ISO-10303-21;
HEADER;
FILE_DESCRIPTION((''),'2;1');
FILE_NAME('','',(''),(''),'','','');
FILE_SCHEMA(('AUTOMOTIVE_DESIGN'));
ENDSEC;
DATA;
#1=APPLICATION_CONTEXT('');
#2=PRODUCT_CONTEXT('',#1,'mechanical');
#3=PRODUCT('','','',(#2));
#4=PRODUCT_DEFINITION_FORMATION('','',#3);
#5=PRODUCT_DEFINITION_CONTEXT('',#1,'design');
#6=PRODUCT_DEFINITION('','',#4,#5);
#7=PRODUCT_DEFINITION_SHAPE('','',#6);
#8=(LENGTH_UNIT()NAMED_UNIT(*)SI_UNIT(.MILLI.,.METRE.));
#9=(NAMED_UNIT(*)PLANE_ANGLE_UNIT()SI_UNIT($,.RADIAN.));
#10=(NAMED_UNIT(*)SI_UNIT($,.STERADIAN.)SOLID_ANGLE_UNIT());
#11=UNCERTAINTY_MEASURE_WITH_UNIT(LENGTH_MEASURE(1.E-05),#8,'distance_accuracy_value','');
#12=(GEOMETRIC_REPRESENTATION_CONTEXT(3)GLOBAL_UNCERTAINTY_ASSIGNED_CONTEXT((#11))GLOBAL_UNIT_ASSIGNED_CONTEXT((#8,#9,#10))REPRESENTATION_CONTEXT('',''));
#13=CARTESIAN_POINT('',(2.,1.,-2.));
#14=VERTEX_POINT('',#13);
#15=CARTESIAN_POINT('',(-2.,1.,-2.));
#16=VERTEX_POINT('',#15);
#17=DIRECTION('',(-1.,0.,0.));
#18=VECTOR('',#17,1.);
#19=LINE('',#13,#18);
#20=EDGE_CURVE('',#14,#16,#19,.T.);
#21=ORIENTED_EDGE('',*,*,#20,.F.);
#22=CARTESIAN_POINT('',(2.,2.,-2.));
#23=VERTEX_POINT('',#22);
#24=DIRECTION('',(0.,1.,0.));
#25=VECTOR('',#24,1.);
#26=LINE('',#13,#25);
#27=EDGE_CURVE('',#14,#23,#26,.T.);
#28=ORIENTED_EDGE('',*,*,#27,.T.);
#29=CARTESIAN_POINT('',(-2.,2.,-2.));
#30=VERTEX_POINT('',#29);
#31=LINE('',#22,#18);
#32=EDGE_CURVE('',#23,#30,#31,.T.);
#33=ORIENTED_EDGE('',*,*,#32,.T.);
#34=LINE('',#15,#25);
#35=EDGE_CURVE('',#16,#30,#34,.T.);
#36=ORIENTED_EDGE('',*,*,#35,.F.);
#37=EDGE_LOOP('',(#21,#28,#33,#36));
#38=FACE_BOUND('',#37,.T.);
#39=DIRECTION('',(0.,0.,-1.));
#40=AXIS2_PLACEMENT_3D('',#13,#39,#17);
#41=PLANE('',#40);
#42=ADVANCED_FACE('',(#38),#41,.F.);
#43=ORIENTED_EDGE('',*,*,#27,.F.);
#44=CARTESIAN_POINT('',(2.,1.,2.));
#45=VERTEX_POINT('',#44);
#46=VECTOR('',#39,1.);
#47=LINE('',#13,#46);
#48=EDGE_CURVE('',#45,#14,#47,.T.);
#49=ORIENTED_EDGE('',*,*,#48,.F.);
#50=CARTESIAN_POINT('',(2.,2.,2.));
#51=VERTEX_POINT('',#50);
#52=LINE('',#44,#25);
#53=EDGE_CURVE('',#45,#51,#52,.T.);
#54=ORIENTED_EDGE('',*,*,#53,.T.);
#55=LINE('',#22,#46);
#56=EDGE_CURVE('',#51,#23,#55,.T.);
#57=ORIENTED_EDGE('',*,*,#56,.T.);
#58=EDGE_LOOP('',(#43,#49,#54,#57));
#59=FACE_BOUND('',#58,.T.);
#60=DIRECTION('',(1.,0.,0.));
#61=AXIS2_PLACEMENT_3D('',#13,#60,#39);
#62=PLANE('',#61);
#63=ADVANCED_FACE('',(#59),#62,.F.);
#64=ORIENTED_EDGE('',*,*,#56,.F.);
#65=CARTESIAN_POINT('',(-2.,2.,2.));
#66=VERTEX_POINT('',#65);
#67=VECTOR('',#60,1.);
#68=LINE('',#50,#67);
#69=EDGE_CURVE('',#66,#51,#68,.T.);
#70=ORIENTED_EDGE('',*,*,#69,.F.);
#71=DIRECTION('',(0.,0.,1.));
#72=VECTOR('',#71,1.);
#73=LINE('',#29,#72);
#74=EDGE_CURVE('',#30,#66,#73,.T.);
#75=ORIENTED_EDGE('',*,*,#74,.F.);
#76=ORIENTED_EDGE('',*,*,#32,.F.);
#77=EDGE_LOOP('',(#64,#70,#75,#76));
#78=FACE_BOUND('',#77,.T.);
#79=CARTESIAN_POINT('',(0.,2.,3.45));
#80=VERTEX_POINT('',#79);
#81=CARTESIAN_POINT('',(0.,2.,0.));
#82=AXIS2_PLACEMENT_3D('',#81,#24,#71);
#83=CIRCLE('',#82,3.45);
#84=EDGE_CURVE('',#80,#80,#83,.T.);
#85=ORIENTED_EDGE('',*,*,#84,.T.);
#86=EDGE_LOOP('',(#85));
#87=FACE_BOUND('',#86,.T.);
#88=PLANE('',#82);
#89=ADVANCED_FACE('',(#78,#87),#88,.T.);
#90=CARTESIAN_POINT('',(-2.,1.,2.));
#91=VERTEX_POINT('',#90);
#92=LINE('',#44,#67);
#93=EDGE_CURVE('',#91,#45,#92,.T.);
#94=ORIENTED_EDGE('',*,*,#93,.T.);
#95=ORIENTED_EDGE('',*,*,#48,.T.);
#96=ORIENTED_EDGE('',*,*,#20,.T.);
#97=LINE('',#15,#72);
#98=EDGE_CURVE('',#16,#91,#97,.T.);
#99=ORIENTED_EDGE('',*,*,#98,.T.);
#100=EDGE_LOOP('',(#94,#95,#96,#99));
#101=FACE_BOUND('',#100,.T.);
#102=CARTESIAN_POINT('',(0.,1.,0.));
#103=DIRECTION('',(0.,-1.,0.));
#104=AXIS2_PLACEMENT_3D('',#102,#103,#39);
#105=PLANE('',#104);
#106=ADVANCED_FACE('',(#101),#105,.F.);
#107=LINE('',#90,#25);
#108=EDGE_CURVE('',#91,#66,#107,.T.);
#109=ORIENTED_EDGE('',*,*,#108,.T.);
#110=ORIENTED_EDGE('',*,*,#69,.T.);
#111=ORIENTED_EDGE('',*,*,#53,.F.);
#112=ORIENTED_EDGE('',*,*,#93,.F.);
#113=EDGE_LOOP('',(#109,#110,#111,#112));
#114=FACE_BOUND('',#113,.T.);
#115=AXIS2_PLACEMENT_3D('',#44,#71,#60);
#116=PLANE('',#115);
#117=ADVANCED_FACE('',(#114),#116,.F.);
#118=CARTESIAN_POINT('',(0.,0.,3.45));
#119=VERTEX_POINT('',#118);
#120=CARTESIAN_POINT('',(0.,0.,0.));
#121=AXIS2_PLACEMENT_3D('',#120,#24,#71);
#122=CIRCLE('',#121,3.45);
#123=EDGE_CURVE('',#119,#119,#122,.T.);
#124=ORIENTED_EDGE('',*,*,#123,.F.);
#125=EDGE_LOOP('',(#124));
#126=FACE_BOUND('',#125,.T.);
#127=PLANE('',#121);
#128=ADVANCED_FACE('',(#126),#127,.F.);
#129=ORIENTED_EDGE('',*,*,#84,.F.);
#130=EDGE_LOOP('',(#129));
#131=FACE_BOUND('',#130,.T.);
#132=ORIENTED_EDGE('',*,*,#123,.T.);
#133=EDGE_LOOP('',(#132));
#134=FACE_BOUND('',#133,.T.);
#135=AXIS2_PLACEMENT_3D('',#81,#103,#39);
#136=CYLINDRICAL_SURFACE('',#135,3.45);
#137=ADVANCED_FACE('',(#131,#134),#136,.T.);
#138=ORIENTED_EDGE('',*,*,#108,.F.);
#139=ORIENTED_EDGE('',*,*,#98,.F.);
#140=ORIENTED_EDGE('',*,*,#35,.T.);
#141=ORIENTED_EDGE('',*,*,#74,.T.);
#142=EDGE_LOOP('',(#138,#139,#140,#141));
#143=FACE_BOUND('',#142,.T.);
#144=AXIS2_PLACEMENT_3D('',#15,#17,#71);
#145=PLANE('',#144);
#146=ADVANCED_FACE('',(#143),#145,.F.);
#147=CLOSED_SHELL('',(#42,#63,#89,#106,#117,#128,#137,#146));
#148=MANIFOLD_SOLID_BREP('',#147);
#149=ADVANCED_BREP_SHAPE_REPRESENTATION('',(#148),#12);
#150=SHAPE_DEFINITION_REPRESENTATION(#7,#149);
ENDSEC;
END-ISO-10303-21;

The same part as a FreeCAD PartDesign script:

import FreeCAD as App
import Part
import Sketcher
from FreeCAD import Vector
Q = App.Units.Quantity


def add_polygon(sketch, points):
    """Adds a closed chain of lines whose ends are joined by coincident constraints."""
    first, n = sketch.GeometryCount, len(points)
    for a, b in zip(points, points[1:] + points[:1]):
        sketch.addGeometry(Part.LineSegment(App.Vector(*a, 0), App.Vector(*b, 0)), False)
    for i in range(n):
        sketch.addConstraint(Sketcher.Constraint("Coincident", first + i, 2, first + (i + 1) % n, 1))

doc = App.newDocument("Part")
params = doc.addObject("Spreadsheet::Sheet", "Params")
for row, (alias, value) in enumerate([
    ("sketch1_diameter", "6.9 mm"),
    ("pad1_length", "2 mm"),
    ("sketch2_width", "4 mm"),
    ("pocket1_length", "1 mm"),
], start=1):
    params.set(f"A{row}", alias)
    params.set(f"B{row}", "=" + value)
    params.setAlias(f"B{row}", alias)

body = doc.addObject("PartDesign::Body", "Body")

sketch1 = body.newObject("Sketcher::SketchObject", "Sketch")
sketch1.AttachmentSupport = (doc.getObject("XZ_Plane"), [""])
sketch1.MapMode = "FlatFace"
sketch1.addGeometry(Part.Circle(Vector(0, 0, 0), Vector(0, 0, 1), 3.5), False)
sketch1.addConstraint(Sketcher.Constraint("Coincident", 0, 3, -1, 1))
sketch1.addConstraint(Sketcher.Constraint("Diameter", 0, Q("6.9 mm")))
sketch1.setExpression("Constraints[1]", "Params.sketch1_diameter")
pad1 = body.newObject("PartDesign::Pad", "Pad")
pad1.Profile = sketch1
pad1.setExpression("Length", "Params.pad1_length")
pad1.Reversed = True

sketch2 = body.newObject("Sketcher::SketchObject", "Sketch001")
sketch2.AttachmentSupport = (doc.getObject("XZ_Plane"), [""])
sketch2.MapMode = "FlatFace"
sketch2.AttachmentOffset = App.Placement(Vector(0, 0, -2), App.Rotation())
add_polygon(sketch2, [(-2, -2), (-2, 2), (2, 2), (2, -2)])
sketch2.addConstraint(Sketcher.Constraint("Vertical", 0))
sketch2.addConstraint(Sketcher.Constraint("Horizontal", 1))
sketch2.addConstraint(Sketcher.Constraint("Vertical", 2))
sketch2.addConstraint(Sketcher.Constraint("Horizontal", 3))
sketch2.addConstraint(Sketcher.Constraint("Symmetric", 0, 2, 2, 2, -1, 1))
sketch2.addConstraint(Sketcher.Constraint("Equal", 3, 0))
sketch2.addConstraint(Sketcher.Constraint("DistanceX", 1, 1, 1, 2, Q("4 mm")))
sketch2.setExpression("Constraints[10]", "Params.sketch2_width")
pocket1 = body.newObject("PartDesign::Pocket", "Pocket")
pocket1.Profile = sketch2
pocket1.setExpression("Length", "Params.pocket1_length")
pocket1.Reversed = True

doc.recompute()
